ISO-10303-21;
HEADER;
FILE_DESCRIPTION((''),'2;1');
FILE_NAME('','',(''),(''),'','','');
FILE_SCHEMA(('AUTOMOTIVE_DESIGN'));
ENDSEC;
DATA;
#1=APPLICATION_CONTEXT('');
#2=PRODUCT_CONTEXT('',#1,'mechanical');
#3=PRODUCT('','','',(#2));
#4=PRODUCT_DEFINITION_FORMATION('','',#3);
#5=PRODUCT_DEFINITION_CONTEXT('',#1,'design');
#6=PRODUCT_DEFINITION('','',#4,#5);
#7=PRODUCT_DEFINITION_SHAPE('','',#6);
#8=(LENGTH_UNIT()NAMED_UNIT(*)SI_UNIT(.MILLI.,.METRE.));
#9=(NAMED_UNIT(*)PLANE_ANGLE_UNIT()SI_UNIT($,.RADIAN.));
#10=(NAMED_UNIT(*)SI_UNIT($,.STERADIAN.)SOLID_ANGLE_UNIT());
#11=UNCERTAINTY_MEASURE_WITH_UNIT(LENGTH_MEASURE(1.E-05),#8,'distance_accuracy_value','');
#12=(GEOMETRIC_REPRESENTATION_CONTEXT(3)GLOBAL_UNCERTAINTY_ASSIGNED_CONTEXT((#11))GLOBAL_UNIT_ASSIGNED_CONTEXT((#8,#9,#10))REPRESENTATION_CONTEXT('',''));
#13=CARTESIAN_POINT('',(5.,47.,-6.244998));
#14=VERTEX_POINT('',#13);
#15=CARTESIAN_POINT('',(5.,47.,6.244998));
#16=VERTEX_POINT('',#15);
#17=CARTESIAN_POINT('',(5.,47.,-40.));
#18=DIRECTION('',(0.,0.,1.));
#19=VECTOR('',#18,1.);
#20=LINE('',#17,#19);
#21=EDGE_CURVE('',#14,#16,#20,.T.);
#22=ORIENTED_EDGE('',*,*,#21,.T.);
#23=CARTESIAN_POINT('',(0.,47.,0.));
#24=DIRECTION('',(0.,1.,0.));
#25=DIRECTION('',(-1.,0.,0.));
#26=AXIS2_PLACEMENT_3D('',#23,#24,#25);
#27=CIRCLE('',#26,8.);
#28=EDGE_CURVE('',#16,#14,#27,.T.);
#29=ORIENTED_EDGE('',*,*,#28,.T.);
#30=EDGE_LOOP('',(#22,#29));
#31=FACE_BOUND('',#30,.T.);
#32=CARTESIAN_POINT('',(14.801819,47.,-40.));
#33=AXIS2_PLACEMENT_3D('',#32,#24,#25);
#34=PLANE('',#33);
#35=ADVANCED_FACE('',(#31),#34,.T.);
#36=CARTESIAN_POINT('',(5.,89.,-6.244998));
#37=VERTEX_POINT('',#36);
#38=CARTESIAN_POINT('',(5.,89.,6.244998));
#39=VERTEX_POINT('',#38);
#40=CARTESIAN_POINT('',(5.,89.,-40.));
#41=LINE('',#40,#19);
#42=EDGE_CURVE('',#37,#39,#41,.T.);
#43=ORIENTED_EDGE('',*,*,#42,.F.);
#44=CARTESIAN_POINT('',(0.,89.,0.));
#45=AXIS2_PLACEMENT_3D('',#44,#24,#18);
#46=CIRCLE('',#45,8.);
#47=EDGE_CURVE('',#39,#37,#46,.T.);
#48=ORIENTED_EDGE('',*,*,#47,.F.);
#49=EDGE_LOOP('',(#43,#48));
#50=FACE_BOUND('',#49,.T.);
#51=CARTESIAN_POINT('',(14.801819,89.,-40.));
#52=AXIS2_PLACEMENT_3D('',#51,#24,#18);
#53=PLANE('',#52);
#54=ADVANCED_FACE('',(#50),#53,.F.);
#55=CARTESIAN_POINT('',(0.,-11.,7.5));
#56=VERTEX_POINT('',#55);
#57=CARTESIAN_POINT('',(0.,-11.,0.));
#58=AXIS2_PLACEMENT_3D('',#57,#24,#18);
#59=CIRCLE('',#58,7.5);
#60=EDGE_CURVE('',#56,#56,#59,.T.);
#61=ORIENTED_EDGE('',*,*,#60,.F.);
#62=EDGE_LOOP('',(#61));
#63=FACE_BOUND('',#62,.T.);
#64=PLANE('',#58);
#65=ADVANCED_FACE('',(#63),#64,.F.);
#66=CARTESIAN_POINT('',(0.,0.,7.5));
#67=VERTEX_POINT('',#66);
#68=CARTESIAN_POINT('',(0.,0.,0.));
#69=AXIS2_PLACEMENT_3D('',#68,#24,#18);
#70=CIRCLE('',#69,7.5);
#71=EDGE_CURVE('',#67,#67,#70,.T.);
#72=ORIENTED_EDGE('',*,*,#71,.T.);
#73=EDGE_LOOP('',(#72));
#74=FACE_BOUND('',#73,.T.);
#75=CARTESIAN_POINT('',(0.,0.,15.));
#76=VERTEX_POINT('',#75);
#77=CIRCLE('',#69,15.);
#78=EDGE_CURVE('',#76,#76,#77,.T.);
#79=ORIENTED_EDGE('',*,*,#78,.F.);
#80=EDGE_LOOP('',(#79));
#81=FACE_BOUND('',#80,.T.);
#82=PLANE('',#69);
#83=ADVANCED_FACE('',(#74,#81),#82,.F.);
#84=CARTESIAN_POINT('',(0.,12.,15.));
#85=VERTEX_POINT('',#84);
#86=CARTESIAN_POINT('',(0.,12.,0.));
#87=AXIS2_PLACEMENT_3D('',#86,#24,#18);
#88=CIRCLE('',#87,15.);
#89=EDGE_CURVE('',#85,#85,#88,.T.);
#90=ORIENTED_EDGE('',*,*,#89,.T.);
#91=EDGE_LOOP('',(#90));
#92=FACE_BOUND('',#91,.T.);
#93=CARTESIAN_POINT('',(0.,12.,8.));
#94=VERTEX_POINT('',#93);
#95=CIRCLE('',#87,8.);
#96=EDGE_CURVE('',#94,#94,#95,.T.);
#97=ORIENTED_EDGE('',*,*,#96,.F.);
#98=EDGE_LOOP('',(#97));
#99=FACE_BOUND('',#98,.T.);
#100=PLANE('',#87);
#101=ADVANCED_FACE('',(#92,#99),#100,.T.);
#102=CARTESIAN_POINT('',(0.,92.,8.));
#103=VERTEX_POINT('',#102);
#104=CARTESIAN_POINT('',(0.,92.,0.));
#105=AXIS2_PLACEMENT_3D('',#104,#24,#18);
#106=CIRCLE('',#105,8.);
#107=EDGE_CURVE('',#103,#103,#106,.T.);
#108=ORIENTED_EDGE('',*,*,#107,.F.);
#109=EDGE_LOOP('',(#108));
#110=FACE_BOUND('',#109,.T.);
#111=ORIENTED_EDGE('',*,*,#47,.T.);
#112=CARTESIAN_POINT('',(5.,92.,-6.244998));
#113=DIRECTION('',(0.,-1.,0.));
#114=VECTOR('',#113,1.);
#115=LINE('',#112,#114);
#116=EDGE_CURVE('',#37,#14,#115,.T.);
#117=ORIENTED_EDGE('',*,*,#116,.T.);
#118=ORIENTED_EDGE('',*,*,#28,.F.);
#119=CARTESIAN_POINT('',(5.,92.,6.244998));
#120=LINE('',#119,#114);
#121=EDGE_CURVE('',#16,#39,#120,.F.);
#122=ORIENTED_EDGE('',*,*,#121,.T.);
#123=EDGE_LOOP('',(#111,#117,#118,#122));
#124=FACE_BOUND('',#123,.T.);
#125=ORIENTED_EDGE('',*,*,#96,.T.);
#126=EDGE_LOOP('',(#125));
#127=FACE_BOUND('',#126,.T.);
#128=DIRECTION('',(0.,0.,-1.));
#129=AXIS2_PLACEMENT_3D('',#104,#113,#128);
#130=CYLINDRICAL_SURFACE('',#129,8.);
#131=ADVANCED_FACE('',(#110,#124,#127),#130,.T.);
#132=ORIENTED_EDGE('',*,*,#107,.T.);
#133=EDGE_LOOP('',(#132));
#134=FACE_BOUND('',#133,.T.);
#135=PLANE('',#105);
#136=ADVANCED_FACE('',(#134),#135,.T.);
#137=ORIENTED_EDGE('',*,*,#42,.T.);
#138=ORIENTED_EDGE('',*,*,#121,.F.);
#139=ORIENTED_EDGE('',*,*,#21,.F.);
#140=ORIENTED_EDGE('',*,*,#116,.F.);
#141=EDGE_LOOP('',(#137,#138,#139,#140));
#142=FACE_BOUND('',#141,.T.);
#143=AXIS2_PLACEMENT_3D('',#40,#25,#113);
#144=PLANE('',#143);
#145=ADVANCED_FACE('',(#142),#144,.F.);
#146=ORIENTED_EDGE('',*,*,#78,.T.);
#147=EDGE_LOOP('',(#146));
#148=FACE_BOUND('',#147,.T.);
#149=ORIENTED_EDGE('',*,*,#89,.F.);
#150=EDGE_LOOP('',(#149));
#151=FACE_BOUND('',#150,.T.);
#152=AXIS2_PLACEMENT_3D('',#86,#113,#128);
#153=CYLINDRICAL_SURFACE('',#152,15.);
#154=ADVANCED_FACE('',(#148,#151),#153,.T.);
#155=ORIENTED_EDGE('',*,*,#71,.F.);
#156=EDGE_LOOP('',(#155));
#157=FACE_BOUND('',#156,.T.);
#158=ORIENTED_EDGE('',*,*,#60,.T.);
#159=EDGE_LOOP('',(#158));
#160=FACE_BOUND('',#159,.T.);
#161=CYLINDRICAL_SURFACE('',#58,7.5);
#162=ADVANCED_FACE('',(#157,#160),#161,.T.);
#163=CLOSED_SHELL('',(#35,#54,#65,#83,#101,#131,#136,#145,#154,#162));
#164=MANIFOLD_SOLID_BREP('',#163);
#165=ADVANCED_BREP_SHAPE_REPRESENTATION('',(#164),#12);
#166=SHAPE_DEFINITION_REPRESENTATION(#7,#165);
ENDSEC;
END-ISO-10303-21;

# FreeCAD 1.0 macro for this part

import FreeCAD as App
import Part
import Sketcher


def add_polygon(sketch, points):
    """Adds a closed chain of lines whose ends are joined by coincident constraints."""
    first, n = sketch.GeometryCount, len(points)
    for a, b in zip(points, points[1:] + points[:1]):
        sketch.addGeometry(Part.LineSegment(App.Vector(*a, 0), App.Vector(*b, 0)), False)
    for i in range(n):
        sketch.addConstraint(Sketcher.Constraint("Coincident", first + i, 2, first + (i + 1) % n, 1))

doc = App.newDocument("Part")
body = doc.addObject("PartDesign::Body", "Body")

# Sketch on XZ plane
sketch1 = body.newObject("Sketcher::SketchObject", "Sketch")
sketch1.AttachmentSupport = (doc.getObject("XZ_Plane"), [""])
sketch1.MapMode = "FlatFace"
sketch1.addGeometry(Part.Circle(App.Vector(0, 0, 0), App.Vector(0, 0, 1), 7.5), False)
sketch1.addConstraint([
    Sketcher.Constraint("Coincident", 0, 3, -1, 1),
    Sketcher.Constraint("Diameter", 0, 15.0),
])
pad1 = body.newObject("PartDesign::Pad", "Pad")
pad1.Profile = sketch1
pad1.Length = 11

# Sketch on XZ plane
sketch2 = body.newObject("Sketcher::SketchObject", "Sketch001")
sketch2.AttachmentSupport = (doc.getObject("XZ_Plane"), [""])
sketch2.MapMode = "FlatFace"
sketch2.addGeometry(Part.Circle(App.Vector(0, 0, 0), App.Vector(0, 0, 1), 15), False)
sketch2.addConstraint([
    Sketcher.Constraint("Coincident", 0, 3, -1, 1),
    Sketcher.Constraint("Diameter", 0, 30.0),
])
pad2 = body.newObject("PartDesign::Pad", "Pad001")
pad2.Profile = sketch2
pad2.Length = 12
pad2.Reversed = True

# Sketch on XZ plane
sketch3 = body.newObject("Sketcher::SketchObject", "Sketch002")
sketch3.AttachmentSupport = (doc.getObject("XZ_Plane"), [""])
sketch3.MapMode = "FlatFace"
sketch3.AttachmentOffset = App.Placement(App.Vector(0, 0, -12), App.Rotation())
sketch3.addGeometry(Part.Circle(App.Vector(0, 0, 0), App.Vector(0, 0, 1), 8), False)
sketch3.addConstraint([
    Sketcher.Constraint("Coincident", 0, 3, -1, 1),
    Sketcher.Constraint("Diameter", 0, 16.0),
])
pad3 = body.newObject("PartDesign::Pad", "Pad002")
pad3.Profile = sketch3
pad3.Length = 80
pad3.Reversed = True

# Sketch on XY plane
sketch4 = body.newObject("Sketcher::SketchObject", "Sketch003")
sketch4.AttachmentSupport = (doc.getObject("XY_Plane"), [""])
sketch4.MapMode = "FlatFace"
add_polygon(sketch4, [(5, 89), (5, 47), (14.801819, 47), (14.801819, 89)])  # lines 0-3
sketch4.addConstraint([
    Sketcher.Constraint("Vertical", 0),
    Sketcher.Constraint("Horizontal", 1),
    Sketcher.Constraint("Vertical", 2),
    Sketcher.Constraint("Horizontal", 3),
    Sketcher.Constraint("DistanceY", 0, 2, 0, 1, 42.0),
    Sketcher.Constraint("DistanceX", -1, 1, 0, 2, 5.0),
    Sketcher.Constraint("DistanceY", -1, 1, 0, 2, 47.0),
    Sketcher.Constraint("DistanceX", 1, 1, 1, 2, 9.801819),
])
pocket1 = body.newObject("PartDesign::Pocket", "Pocket")
pocket1.Profile = sketch4
pocket1.Length = 80
pocket1.Midplane = True

doc.recompute()
